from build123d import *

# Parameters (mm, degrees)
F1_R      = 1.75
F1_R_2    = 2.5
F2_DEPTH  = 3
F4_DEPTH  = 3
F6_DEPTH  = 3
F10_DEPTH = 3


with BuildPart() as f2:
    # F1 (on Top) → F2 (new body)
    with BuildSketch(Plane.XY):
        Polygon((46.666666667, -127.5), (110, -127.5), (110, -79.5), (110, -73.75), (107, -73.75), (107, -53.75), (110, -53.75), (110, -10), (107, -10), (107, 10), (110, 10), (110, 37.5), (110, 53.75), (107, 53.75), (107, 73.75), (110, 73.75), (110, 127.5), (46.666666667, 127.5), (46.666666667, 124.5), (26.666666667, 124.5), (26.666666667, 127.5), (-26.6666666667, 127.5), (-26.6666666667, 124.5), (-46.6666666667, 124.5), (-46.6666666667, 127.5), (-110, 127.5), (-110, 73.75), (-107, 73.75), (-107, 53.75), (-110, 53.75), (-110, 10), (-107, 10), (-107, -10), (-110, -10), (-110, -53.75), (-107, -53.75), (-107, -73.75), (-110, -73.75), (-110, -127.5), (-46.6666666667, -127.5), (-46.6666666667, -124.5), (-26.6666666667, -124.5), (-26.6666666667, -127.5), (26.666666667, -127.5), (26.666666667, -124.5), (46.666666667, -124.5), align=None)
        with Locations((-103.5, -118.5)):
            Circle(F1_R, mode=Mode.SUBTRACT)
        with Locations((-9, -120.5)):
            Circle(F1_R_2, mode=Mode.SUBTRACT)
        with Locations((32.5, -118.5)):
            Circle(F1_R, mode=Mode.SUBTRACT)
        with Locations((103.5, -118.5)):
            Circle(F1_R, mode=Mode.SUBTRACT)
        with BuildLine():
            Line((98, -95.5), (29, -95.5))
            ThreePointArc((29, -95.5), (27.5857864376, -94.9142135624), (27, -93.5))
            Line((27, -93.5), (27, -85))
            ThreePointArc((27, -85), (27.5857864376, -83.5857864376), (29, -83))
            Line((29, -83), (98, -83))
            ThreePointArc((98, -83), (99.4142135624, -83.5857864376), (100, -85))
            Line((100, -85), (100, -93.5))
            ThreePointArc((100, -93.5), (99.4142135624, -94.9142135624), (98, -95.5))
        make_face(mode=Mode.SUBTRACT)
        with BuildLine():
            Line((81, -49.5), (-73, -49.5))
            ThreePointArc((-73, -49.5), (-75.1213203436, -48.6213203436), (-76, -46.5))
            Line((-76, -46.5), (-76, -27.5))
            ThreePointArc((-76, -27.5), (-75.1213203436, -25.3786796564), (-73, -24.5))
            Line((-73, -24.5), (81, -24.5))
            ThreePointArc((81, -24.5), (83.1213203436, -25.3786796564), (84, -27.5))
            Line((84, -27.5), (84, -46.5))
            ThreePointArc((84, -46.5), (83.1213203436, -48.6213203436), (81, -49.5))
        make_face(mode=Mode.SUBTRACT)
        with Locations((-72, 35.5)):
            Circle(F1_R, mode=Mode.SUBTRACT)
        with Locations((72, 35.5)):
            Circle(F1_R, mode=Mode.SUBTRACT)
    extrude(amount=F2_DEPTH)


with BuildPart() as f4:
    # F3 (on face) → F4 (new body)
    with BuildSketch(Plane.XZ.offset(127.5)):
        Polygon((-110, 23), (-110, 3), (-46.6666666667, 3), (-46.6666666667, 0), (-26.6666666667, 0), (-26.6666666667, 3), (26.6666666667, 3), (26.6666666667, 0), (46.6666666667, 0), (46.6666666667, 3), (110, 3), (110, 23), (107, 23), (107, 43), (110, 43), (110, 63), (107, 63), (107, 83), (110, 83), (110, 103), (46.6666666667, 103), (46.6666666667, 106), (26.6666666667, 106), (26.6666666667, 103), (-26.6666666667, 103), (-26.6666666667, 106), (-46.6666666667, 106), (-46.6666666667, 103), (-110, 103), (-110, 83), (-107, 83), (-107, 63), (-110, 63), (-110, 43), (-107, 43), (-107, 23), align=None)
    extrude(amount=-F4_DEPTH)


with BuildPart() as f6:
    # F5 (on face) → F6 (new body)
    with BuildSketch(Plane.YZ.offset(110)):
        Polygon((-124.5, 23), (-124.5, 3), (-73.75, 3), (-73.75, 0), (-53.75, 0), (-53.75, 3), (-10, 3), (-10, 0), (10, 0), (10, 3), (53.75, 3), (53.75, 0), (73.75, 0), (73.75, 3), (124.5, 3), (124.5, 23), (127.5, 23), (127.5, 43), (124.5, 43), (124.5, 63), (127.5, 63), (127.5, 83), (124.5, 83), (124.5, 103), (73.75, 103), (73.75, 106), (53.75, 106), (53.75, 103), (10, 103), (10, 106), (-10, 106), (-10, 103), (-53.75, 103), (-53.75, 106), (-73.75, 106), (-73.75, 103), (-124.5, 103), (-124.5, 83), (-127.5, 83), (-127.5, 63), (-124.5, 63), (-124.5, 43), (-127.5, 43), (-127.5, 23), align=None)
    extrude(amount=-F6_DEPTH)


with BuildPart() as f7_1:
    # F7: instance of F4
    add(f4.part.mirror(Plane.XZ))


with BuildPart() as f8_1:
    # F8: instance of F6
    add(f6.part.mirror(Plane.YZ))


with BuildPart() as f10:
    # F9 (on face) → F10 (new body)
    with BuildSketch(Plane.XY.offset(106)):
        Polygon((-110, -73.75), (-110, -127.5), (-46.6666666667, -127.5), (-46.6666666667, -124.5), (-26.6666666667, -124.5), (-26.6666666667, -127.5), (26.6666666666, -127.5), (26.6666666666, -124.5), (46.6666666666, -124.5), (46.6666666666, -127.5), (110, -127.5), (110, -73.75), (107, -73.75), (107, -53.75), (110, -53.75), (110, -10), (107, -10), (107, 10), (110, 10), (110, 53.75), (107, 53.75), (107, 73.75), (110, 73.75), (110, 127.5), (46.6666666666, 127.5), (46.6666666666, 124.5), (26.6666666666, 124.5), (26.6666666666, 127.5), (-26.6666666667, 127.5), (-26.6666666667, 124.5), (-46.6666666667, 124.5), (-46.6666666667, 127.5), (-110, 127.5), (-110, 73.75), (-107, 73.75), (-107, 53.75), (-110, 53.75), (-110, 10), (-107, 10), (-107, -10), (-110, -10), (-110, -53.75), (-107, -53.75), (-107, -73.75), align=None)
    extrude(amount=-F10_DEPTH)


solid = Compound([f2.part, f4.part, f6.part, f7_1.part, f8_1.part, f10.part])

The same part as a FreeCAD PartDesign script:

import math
import FreeCAD as App
import Part
import Sketcher
from FreeCAD import Vector

doc = App.newDocument("Part")
body = doc.addObject("PartDesign::Body", "Body")

# Sketch on XY plane
sketch1 = doc.addObject("Sketcher::SketchObject", "Sketch")
body.addObject(sketch1)
sketch1.AttachmentSupport = (doc.XY_Plane, [""])
sketch1.MapMode = "FlatFace"
sketch1.addGeometry([
    Part.LineSegment(Vector(46.666667, -127.5, 0), Vector(110, -127.5, 0)),  # 0
    Part.LineSegment(Vector(110, -127.5, 0), Vector(110, -73.75, 0)),  # 1
    Part.LineSegment(Vector(110, -73.75, 0), Vector(107, -73.75, 0)),  # 2
    Part.LineSegment(Vector(107, -73.75, 0), Vector(107, -53.75, 0)),  # 3
    Part.LineSegment(Vector(107, -53.75, 0), Vector(110, -53.75, 0)),  # 4
    Part.LineSegment(Vector(110, -53.75, 0), Vector(110, -10, 0)),  # 5
    Part.LineSegment(Vector(110, -10, 0), Vector(107, -10, 0)),  # 6
    Part.LineSegment(Vector(107, -10, 0), Vector(107, 10, 0)),  # 7
    Part.LineSegment(Vector(107, 10, 0), Vector(110, 10, 0)),  # 8
    Part.LineSegment(Vector(110, 10, 0), Vector(110, 53.75, 0)),  # 9
    Part.LineSegment(Vector(110, 53.75, 0), Vector(107, 53.75, 0)),  # 10
    Part.LineSegment(Vector(107, 53.75, 0), Vector(107, 73.75, 0)),  # 11
    Part.LineSegment(Vector(107, 73.75, 0), Vector(110, 73.75, 0)),  # 12
    Part.LineSegment(Vector(110, 73.75, 0), Vector(110, 127.5, 0)),  # 13
    Part.LineSegment(Vector(110, 127.5, 0), Vector(46.666667, 127.5, 0)),  # 14
    Part.LineSegment(Vector(46.666667, 127.5, 0), Vector(46.666667, 124.5, 0)),  # 15
    Part.LineSegment(Vector(46.666667, 124.5, 0), Vector(26.666667, 124.5, 0)),  # 16
    Part.LineSegment(Vector(26.666667, 124.5, 0), Vector(26.666667, 127.5, 0)),  # 17
    Part.LineSegment(Vector(26.666667, 127.5, 0), Vector(-26.666667, 127.5, 0)),  # 18
    Part.LineSegment(Vector(-26.666667, 127.5, 0), Vector(-26.666667, 124.5, 0)),  # 19
    Part.LineSegment(Vector(-26.666667, 124.5, 0), Vector(-46.666667, 124.5, 0)),  # 20
    Part.LineSegment(Vector(-46.666667, 124.5, 0), Vector(-46.666667, 127.5, 0)),  # 21
    Part.LineSegment(Vector(-46.666667, 127.5, 0), Vector(-110, 127.5, 0)),  # 22
    Part.LineSegment(Vector(-110, 127.5, 0), Vector(-110, 73.75, 0)),  # 23
    Part.LineSegment(Vector(-110, 73.75, 0), Vector(-107, 73.75, 0)),  # 24
    Part.LineSegment(Vector(-107, 73.75, 0), Vector(-107, 53.75, 0)),  # 25
    Part.LineSegment(Vector(-107, 53.75, 0), Vector(-110, 53.75, 0)),  # 26
    Part.LineSegment(Vector(-110, 53.75, 0), Vector(-110, 10, 0)),  # 27
    Part.LineSegment(Vector(-110, 10, 0), Vector(-107, 10, 0)),  # 28
    Part.LineSegment(Vector(-107, 10, 0), Vector(-107, -10, 0)),  # 29
    Part.LineSegment(Vector(-107, -10, 0), Vector(-110, -10, 0)),  # 30
    Part.LineSegment(Vector(-110, -10, 0), Vector(-110, -53.75, 0)),  # 31
    Part.LineSegment(Vector(-110, -53.75, 0), Vector(-107, -53.75, 0)),  # 32
    Part.LineSegment(Vector(-107, -53.75, 0), Vector(-107, -73.75, 0)),  # 33
    Part.LineSegment(Vector(-107, -73.75, 0), Vector(-110, -73.75, 0)),  # 34
    Part.LineSegment(Vector(-110, -73.75, 0), Vector(-110, -127.5, 0)),  # 35
    Part.LineSegment(Vector(-110, -127.5, 0), Vector(-46.666667, -127.5, 0)),  # 36
    Part.LineSegment(Vector(-46.666667, -127.5, 0), Vector(-46.666667, -124.5, 0)),  # 37
    Part.LineSegment(Vector(-46.666667, -124.5, 0), Vector(-26.666667, -124.5, 0)),  # 38
    Part.LineSegment(Vector(-26.666667, -124.5, 0), Vector(-26.666667, -127.5, 0)),  # 39
    Part.LineSegment(Vector(-26.666667, -127.5, 0), Vector(26.666667, -127.5, 0)),  # 40
    Part.LineSegment(Vector(26.666667, -127.5, 0), Vector(26.666667, -124.5, 0)),  # 41
    Part.LineSegment(Vector(26.666667, -124.5, 0), Vector(46.666667, -124.5, 0)),  # 42
    Part.LineSegment(Vector(46.666667, -124.5, 0), Vector(46.666667, -127.5, 0)),  # 43
    Part.Circle(Vector(-103.5, -118.5, 0), Vector(0, 0, 1), 1.75),  # 44
    Part.Circle(Vector(-9, -120.5, 0), Vector(0, 0, 1), 2.5),  # 45
    Part.Circle(Vector(32.5, -118.5, 0), Vector(0, 0, 1), 1.75),  # 46
    Part.Circle(Vector(103.5, -118.5, 0), Vector(0, 0, 1), 1.75),  # 47
    Part.ArcOfCircle(Part.Circle(Vector(98, -93.5, 0), Vector(0, 0, 1), 2), math.radians(-90), math.radians(0)),  # 48
    Part.LineSegment(Vector(98, -95.5, 0), Vector(29, -95.5, 0)),  # 49
    Part.ArcOfCircle(Part.Circle(Vector(29, -93.5, 0), Vector(0, 0, 1), 2), math.radians(180), math.radians(270)),  # 50
    Part.LineSegment(Vector(27, -93.5, 0), Vector(27, -85, 0)),  # 51
    Part.ArcOfCircle(Part.Circle(Vector(29, -85, 0), Vector(0, 0, 1), 2), math.radians(90), math.radians(180)),  # 52
    Part.LineSegment(Vector(29, -83, 0), Vector(98, -83, 0)),  # 53
    Part.ArcOfCircle(Part.Circle(Vector(98, -85, 0), Vector(0, 0, 1), 2), math.radians(0), math.radians(90)),  # 54
    Part.LineSegment(Vector(100, -85, 0), Vector(100, -93.5, 0)),  # 55
    Part.Circle(Vector(-72, 35.5, 0), Vector(0, 0, 1), 1.75),  # 56
    Part.ArcOfCircle(Part.Circle(Vector(81, -46.5, 0), Vector(0, 0, 1), 3), math.radians(-90), math.radians(0)),  # 57
    Part.LineSegment(Vector(81, -49.5, 0), Vector(-73, -49.5, 0)),  # 58
    Part.ArcOfCircle(Part.Circle(Vector(-73, -46.5, 0), Vector(0, 0, 1), 3), math.radians(180), math.radians(270)),  # 59
    Part.LineSegment(Vector(-76, -46.5, 0), Vector(-76, -27.5, 0)),  # 60
    Part.ArcOfCircle(Part.Circle(Vector(-73, -27.5, 0), Vector(0, 0, 1), 3), math.radians(90), math.radians(180)),  # 61
    Part.LineSegment(Vector(-73, -24.5, 0), Vector(81, -24.5, 0)),  # 62
    Part.ArcOfCircle(Part.Circle(Vector(81, -27.5, 0), Vector(0, 0, 1), 3), math.radians(0), math.radians(90)),  # 63
    Part.LineSegment(Vector(84, -27.5, 0), Vector(84, -46.5, 0)),  # 64
    Part.Circle(Vector(72, 35.5, 0), Vector(0, 0, 1), 1.75),  # 65
], False)
sketch1.addConstraint([
    Sketcher.Constraint("Coincident", 0, 2, 1, 1),
    Sketcher.Constraint("Coincident", 1, 2, 2, 1),
    Sketcher.Constraint("Coincident", 2, 2, 3, 1),
    Sketcher.Constraint("Coincident", 3, 2, 4, 1),
    Sketcher.Constraint("Coincident", 4, 2, 5, 1),
    Sketcher.Constraint("Coincident", 5, 2, 6, 1),
    Sketcher.Constraint("Coincident", 6, 2, 7, 1),
    Sketcher.Constraint("Coincident", 7, 2, 8, 1),
    Sketcher.Constraint("Coincident", 8, 2, 9, 1),
    Sketcher.Constraint("Coincident", 9, 2, 10, 1),
    Sketcher.Constraint("Coincident", 10, 2, 11, 1),
    Sketcher.Constraint("Coincident", 11, 2, 12, 1),
    Sketcher.Constraint("Coincident", 12, 2, 13, 1),
    Sketcher.Constraint("Coincident", 13, 2, 14, 1),
    Sketcher.Constraint("Coincident", 14, 2, 15, 1),
    Sketcher.Constraint("Coincident", 15, 2, 16, 1),
    Sketcher.Constraint("Coincident", 16, 2, 17, 1),
    Sketcher.Constraint("Coincident", 17, 2, 18, 1),
    Sketcher.Constraint("Coincident", 18, 2, 19, 1),
    Sketcher.Constraint("Coincident", 19, 2, 20, 1),
    Sketcher.Constraint("Coincident", 20, 2, 21, 1),
    Sketcher.Constraint("Coincident", 21, 2, 22, 1),
    Sketcher.Constraint("Coincident", 22, 2, 23, 1),
    Sketcher.Constraint("Coincident", 23, 2, 24, 1),
    Sketcher.Constraint("Coincident", 24, 2, 25, 1),
    Sketcher.Constraint("Coincident", 25, 2, 26, 1),
    Sketcher.Constraint("Coincident", 26, 2, 27, 1),
    Sketcher.Constraint("Coincident", 27, 2, 28, 1),
    Sketcher.Constraint("Coincident", 28, 2, 29, 1),
    Sketcher.Constraint("Coincident", 29, 2, 30, 1),
    Sketcher.Constraint("Coincident", 30, 2, 31, 1),
    Sketcher.Constraint("Coincident", 31, 2, 32, 1),
    Sketcher.Constraint("Coincident", 32, 2, 33, 1),
    Sketcher.Constraint("Coincident", 33, 2, 34, 1),
    Sketcher.Constraint("Coincident", 34, 2, 35, 1),
    Sketcher.Constraint("Coincident", 35, 2, 36, 1),
    Sketcher.Constraint("Coincident", 36, 2, 37, 1),
    Sketcher.Constraint("Coincident", 37, 2, 38, 1),
    Sketcher.Constraint("Coincident", 38, 2, 39, 1),
    Sketcher.Constraint("Coincident", 39, 2, 40, 1),
    Sketcher.Constraint("Coincident", 40, 2, 41, 1),
    Sketcher.Constraint("Coincident", 41, 2, 42, 1),
    Sketcher.Constraint("Coincident", 42, 2, 43, 1),
    Sketcher.Constraint("Coincident", 43, 2, 0, 1),
    Sketcher.Constraint("Tangent", 48, 1, 49, 1),
    Sketcher.Constraint("Tangent", 49, 2, 50, 2),
    Sketcher.Constraint("Tangent", 50, 1, 51, 1),
    Sketcher.Constraint("Tangent", 51, 2, 52, 2),
    Sketcher.Constraint("Tangent", 52, 1, 53, 1),
    Sketcher.Constraint("Tangent", 53, 2, 54, 2),
    Sketcher.Constraint("Tangent", 54, 1, 55, 1),
    Sketcher.Constraint("Tangent", 55, 2, 48, 2),
    Sketcher.Constraint("Tangent", 57, 1, 58, 1),
    Sketcher.Constraint("Tangent", 58, 2, 59, 2),
    Sketcher.Constraint("Tangent", 59, 1, 60, 1),
    Sketcher.Constraint("Tangent", 60, 2, 61, 2),
    Sketcher.Constraint("Tangent", 61, 1, 62, 1),
    Sketcher.Constraint("Tangent", 62, 2, 63, 2),
    Sketcher.Constraint("Tangent", 63, 1, 64, 1),
    Sketcher.Constraint("Tangent", 64, 2, 57, 2),
    Sketcher.Constraint("Horizontal", 0),
    Sketcher.Constraint("Vertical", 1),
    Sketcher.Constraint("Horizontal", 2),
    Sketcher.Constraint("Vertical", 3),
    Sketcher.Constraint("Horizontal", 4),
    Sketcher.Constraint("Vertical", 5),
    Sketcher.Constraint("Horizontal", 6),
    Sketcher.Constraint("Vertical", 7),
    Sketcher.Constraint("Horizontal", 8),
    Sketcher.Constraint("Vertical", 9),
    Sketcher.Constraint("Horizontal", 10),
    Sketcher.Constraint("Vertical", 11),
    Sketcher.Constraint("Horizontal", 12),
    Sketcher.Constraint("Vertical", 13),
    Sketcher.Constraint("Horizontal", 14),
    Sketcher.Constraint("Vertical", 15),
    Sketcher.Constraint("Horizontal", 16),
    Sketcher.Constraint("Vertical", 17),
    Sketcher.Constraint("Horizontal", 18),
    Sketcher.Constraint("Vertical", 19),
    Sketcher.Constraint("Horizontal", 20),
    Sketcher.Constraint("Vertical", 21),
    Sketcher.Constraint("Horizontal", 22),
    Sketcher.Constraint("Vertical", 23),
    Sketcher.Constraint("Horizontal", 24),
    Sketcher.Constraint("Vertical", 25),
    Sketcher.Constraint("Horizontal", 26),
    Sketcher.Constraint("Vertical", 27),
    Sketcher.Constraint("Horizontal", 28),
    Sketcher.Constraint("Vertical", 29),
    Sketcher.Constraint("Horizontal", 30),
    Sketcher.Constraint("Vertical", 31),
    Sketcher.Constraint("Horizontal", 32),
    Sketcher.Constraint("Vertical", 33),
    Sketcher.Constraint("Horizontal", 34),
    Sketcher.Constraint("Vertical", 35),
    Sketcher.Constraint("Horizontal", 36),
    Sketcher.Constraint("Vertical", 37),
    Sketcher.Constraint("Horizontal", 38),
    Sketcher.Constraint("Vertical", 39),
    Sketcher.Constraint("Horizontal", 40),
    Sketcher.Constraint("Vertical", 41),
    Sketcher.Constraint("Horizontal", 42),
    Sketcher.Constraint("Vertical", 43),
    Sketcher.Constraint("Horizontal", 49),
    Sketcher.Constraint("Vertical", 51),
    Sketcher.Constraint("Horizontal", 53),
    Sketcher.Constraint("Vertical", 55),
    Sketcher.Constraint("Horizontal", 58),
    Sketcher.Constraint("Vertical", 60),
    Sketcher.Constraint("Horizontal", 62),
    Sketcher.Constraint("Vertical", 64),
    Sketcher.Constraint("Equal", 44, 46),
    Sketcher.Constraint("Equal", 46, 47),
    Sketcher.Constraint("Equal", 48, 50),
    Sketcher.Constraint("Equal", 50, 52),
    Sketcher.Constraint("Equal", 52, 54),
    Sketcher.Constraint("Equal", 47, 56),
    Sketcher.Constraint("Equal", 57, 59),
    Sketcher.Constraint("Equal", 59, 61),
    Sketcher.Constraint("Equal", 61, 63),
    Sketcher.Constraint("Equal", 56, 65),
    Sketcher.Constraint("Symmetric", 0, 2, 22, 2, -1, 1),
    Sketcher.Constraint("Symmetric", 2, 2, 24, 2, -1, 1),
    Sketcher.Constraint("Symmetric", 4, 2, 26, 2, -1, 1),
    Sketcher.Constraint("Symmetric", 6, 2, 28, 2, -1, 1),
    Sketcher.Constraint("Symmetric", 8, 2, 30, 2, -1, 1),
    Sketcher.Constraint("Symmetric", 10, 2, 32, 2, -1, 1),
    Sketcher.Constraint("Symmetric", 12, 2, 34, 2, -1, 1),
    Sketcher.Constraint("Symmetric", 14, 2, 36, 2, -1, 1),
    Sketcher.Constraint("Symmetric", 16, 2, 38, 2, -1, 1),
    Sketcher.Constraint("Symmetric", 18, 2, 40, 2, -1, 1),
    Sketcher.Constraint("Symmetric", 20, 2, 42, 2, -1, 1),
    Sketcher.Constraint("Symmetric", 44, 3, 47, 3, -2),
    Sketcher.Constraint("Symmetric", 56, 3, 65, 3, -2),
    Sketcher.Constraint("Symmetric", 16, 2, 19, 2, -2),
    Sketcher.Constraint("Symmetric", 14, 2, 21, 2, -2),
    Sketcher.Constraint("Symmetric", 12, 2, 23, 2, -2),
    Sketcher.Constraint("Symmetric", 10, 2, 25, 2, -2),
    Sketcher.Constraint("Symmetric", 8, 2, 27, 2, -2),
    Sketcher.Constraint("Horizontal", 44, 3, 46, 3),
    Sketcher.Constraint("Horizontal", 14, 2, 17, 2),
    Sketcher.Constraint("Vertical", 1, 2, 4, 2),
    Sketcher.Constraint("Vertical", 3, 2, 6, 2),
    Sketcher.Constraint("Equal", 42, 3),
    Sketcher.Constraint("Equal", 3, 7),
    Sketcher.Constraint("Equal", 34, 15),
    Sketcher.Constraint("Diameter", 45, 5.0),
    Sketcher.Constraint("Radius", 48, 2.0),
    Sketcher.Constraint("Radius", 57, 3.0),
    Sketcher.Constraint("Diameter", 44, 3.5),
    Sketcher.Constraint("DistanceX", 2, 2, 2, 1, 3.0),
    Sketcher.Constraint("DistanceX", 16, 2, 16, 1, 20.0),
    Sketcher.Constraint("DistanceX", 49, 2, 49, 1, 69.0),
    Sketcher.Constraint("DistanceX", 58, 2, 58, 1, 154.0),
    Sketcher.Constraint("DistanceY", 60, 1, 60, 2, 19.0),
    Sketcher.Constraint("DistanceY", 51, 1, 51, 2, 8.5),
    Sketcher.Constraint("DistanceX", 45, 3, -1, 1, 9.0),
    Sketcher.Constraint("DistanceX", -1, 1, 48, 3, 98.0),
    Sketcher.Constraint("DistanceY", 52, 3, -1, 1, 85.0),
    Sketcher.Constraint("DistanceX", 56, 3, -1, 1, 72.0),
    Sketcher.Constraint("DistanceX", -1, 1, 57, 3, 81.0),
    Sketcher.Constraint("DistanceX", -1, 1, 0, 2, 110.0),
    Sketcher.Constraint("DistanceY", 1, 1, 1, 2, 53.75),
    Sketcher.Constraint("DistanceY", 5, 1, 5, 2, 43.75),
    Sketcher.Constraint("DistanceX", 44, 3, -1, 1, 103.5),
    Sketcher.Constraint("DistanceY", 44, 3, -1, 1, 118.5),
    Sketcher.Constraint("DistanceY", 45, 3, -1, 1, 120.5),
    Sketcher.Constraint("DistanceX", -1, 1, 46, 3, 32.5),
    Sketcher.Constraint("DistanceY", -1, 1, 56, 3, 35.5),
    Sketcher.Constraint("DistanceY", 57, 3, -1, 1, 46.5),
    Sketcher.Constraint("DistanceX", 0, 1, 0, 2, 63.333333),
])
pad1 = doc.addObject("PartDesign::Pad", "Pad")
body.addObject(pad1)
pad1.Profile = sketch1
pad1.Length = 3
body2 = doc.addObject("PartDesign::Body", "Body001")

# Sketch on XZ plane
sketch2 = doc.addObject("Sketcher::SketchObject", "Sketch001")
body2.addObject(sketch2)
sketch2.AttachmentSupport = (doc.getObject("XZ_Plane001"), [""])
sketch2.MapMode = "FlatFace"
sketch2.AttachmentOffset = App.Placement(Vector(0, 0, 127.5), App.Rotation())
sketch2.addGeometry([
    Part.LineSegment(Vector(-110, 23, 0), Vector(-110, 3, 0)),  # 0
    Part.LineSegment(Vector(-110, 3, 0), Vector(-46.666667, 3, 0)),  # 1
    Part.LineSegment(Vector(-46.666667, 3, 0), Vector(-46.666667, 0, 0)),  # 2
    Part.LineSegment(Vector(-46.666667, 0, 0), Vector(-26.666667, 0, 0)),  # 3
    Part.LineSegment(Vector(-26.666667, 0, 0), Vector(-26.666667, 3, 0)),  # 4
    Part.LineSegment(Vector(-26.666667, 3, 0), Vector(26.666667, 3, 0)),  # 5
    Part.LineSegment(Vector(26.666667, 3, 0), Vector(26.666667, 0, 0)),  # 6
    Part.LineSegment(Vector(26.666667, 0, 0), Vector(46.666667, 0, 0)),  # 7
    Part.LineSegment(Vector(46.666667, 0, 0), Vector(46.666667, 3, 0)),  # 8
    Part.LineSegment(Vector(46.666667, 3, 0), Vector(110, 3, 0)),  # 9
    Part.LineSegment(Vector(110, 3, 0), Vector(110, 23, 0)),  # 10
    Part.LineSegment(Vector(110, 23, 0), Vector(107, 23, 0)),  # 11
    Part.LineSegment(Vector(107, 23, 0), Vector(107, 43, 0)),  # 12
    Part.LineSegment(Vector(107, 43, 0), Vector(110, 43, 0)),  # 13
    Part.LineSegment(Vector(110, 43, 0), Vector(110, 63, 0)),  # 14
    Part.LineSegment(Vector(110, 63, 0), Vector(107, 63, 0)),  # 15
    Part.LineSegment(Vector(107, 63, 0), Vector(107, 83, 0)),  # 16
    Part.LineSegment(Vector(107, 83, 0), Vector(110, 83, 0)),  # 17
    Part.LineSegment(Vector(110, 83, 0), Vector(110, 103, 0)),  # 18
    Part.LineSegment(Vector(110, 103, 0), Vector(46.666667, 103, 0)),  # 19
    Part.LineSegment(Vector(46.666667, 103, 0), Vector(46.666667, 106, 0)),  # 20
    Part.LineSegment(Vector(46.666667, 106, 0), Vector(26.666667, 106, 0)),  # 21
    Part.LineSegment(Vector(26.666667, 106, 0), Vector(26.666667, 103, 0)),  # 22
    Part.LineSegment(Vector(26.666667, 103, 0), Vector(-26.666667, 103, 0)),  # 23
    Part.LineSegment(Vector(-26.666667, 103, 0), Vector(-26.666667, 106, 0)),  # 24
    Part.LineSegment(Vector(-26.666667, 106, 0), Vector(-46.666667, 106, 0)),  # 25
    Part.LineSegment(Vector(-46.666667, 106, 0), Vector(-46.666667, 103, 0)),  # 26
    Part.LineSegment(Vector(-46.666667, 103, 0), Vector(-110, 103, 0)),  # 27
    Part.LineSegment(Vector(-110, 103, 0), Vector(-110, 83, 0)),  # 28
    Part.LineSegment(Vector(-110, 83, 0), Vector(-107, 83, 0)),  # 29
    Part.LineSegment(Vector(-107, 83, 0), Vector(-107, 63, 0)),  # 30
    Part.LineSegment(Vector(-107, 63, 0), Vector(-110, 63, 0)),  # 31
    Part.LineSegment(Vector(-110, 63, 0), Vector(-110, 43, 0)),  # 32
    Part.LineSegment(Vector(-110, 43, 0), Vector(-107, 43, 0)),  # 33
    Part.LineSegment(Vector(-107, 43, 0), Vector(-107, 23, 0)),  # 34
    Part.LineSegment(Vector(-107, 23, 0), Vector(-110, 23, 0)),  # 35
], False)
sketch2.addConstraint([
    Sketcher.Constraint("Coincident", 0, 2, 1, 1),
    Sketcher.Constraint("Coincident", 1, 2, 2, 1),
    Sketcher.Constraint("Coincident", 2, 2, 3, 1),
    Sketcher.Constraint("Coincident", 3, 2, 4, 1),
    Sketcher.Constraint("Coincident", 4, 2, 5, 1),
    Sketcher.Constraint("Coincident", 5, 2, 6, 1),
    Sketcher.Constraint("Coincident", 6, 2, 7, 1),
    Sketcher.Constraint("Coincident", 7, 2, 8, 1),
    Sketcher.Constraint("Coincident", 8, 2, 9, 1),
    Sketcher.Constraint("Coincident", 9, 2, 10, 1),
    Sketcher.Constraint("Coincident", 10, 2, 11, 1),
    Sketcher.Constraint("Coincident", 11, 2, 12, 1),
    Sketcher.Constraint("Coincident", 12, 2, 13, 1),
    Sketcher.Constraint("Coincident", 13, 2, 14, 1),
    Sketcher.Constraint("Coincident", 14, 2, 15, 1),
    Sketcher.Constraint("Coincident", 15, 2, 16, 1),
    Sketcher.Constraint("Coincident", 16, 2, 17, 1),
    Sketcher.Constraint("Coincident", 17, 2, 18, 1),
    Sketcher.Constraint("Coincident", 18, 2, 19, 1),
    Sketcher.Constraint("Coincident", 19, 2, 20, 1),
    Sketcher.Constraint("Coincident", 20, 2, 21, 1),
    Sketcher.Constraint("Coincident", 21, 2, 22, 1),
    Sketcher.Constraint("Coincident", 22, 2, 23, 1),
    Sketcher.Constraint("Coincident", 23, 2, 24, 1),
    Sketcher.Constraint("Coincident", 24, 2, 25, 1),
    Sketcher.Constraint("Coincident", 25, 2, 26, 1),
    Sketcher.Constraint("Coincident", 26, 2, 27, 1),
    Sketcher.Constraint("Coincident", 27, 2, 28, 1),
    Sketcher.Constraint("Coincident", 28, 2, 29, 1),
    Sketcher.Constraint("Coincident", 29, 2, 30, 1),
    Sketcher.Constraint("Coincident", 30, 2, 31, 1),
    Sketcher.Constraint("Coincident", 31, 2, 32, 1),
    Sketcher.Constraint("Coincident", 32, 2, 33, 1),
    Sketcher.Constraint("Coincident", 33, 2, 34, 1),
    Sketcher.Constraint("Coincident", 34, 2, 35, 1),
    Sketcher.Constraint("Coincident", 35, 2, 0, 1),
    Sketcher.Constraint("Vertical", 0),
    Sketcher.Constraint("Horizontal", 1),
    Sketcher.Constraint("Vertical", 2),
    Sketcher.Constraint("Horizontal", 3),
    Sketcher.Constraint("Vertical", 4),
    Sketcher.Constraint("Horizontal", 5),
    Sketcher.Constraint("Vertical", 6),
    Sketcher.Constraint("Horizontal", 7),
    Sketcher.Constraint("Vertical", 8),
    Sketcher.Constraint("Horizontal", 9),
    Sketcher.Constraint("Vertical", 10),
    Sketcher.Constraint("Horizontal", 11),
    Sketcher.Constraint("Vertical", 12),
    Sketcher.Constraint("Horizontal", 13),
    Sketcher.Constraint("Vertical", 14),
    Sketcher.Constraint("Horizontal", 15),
    Sketcher.Constraint("Vertical", 16),
    Sketcher.Constraint("Horizontal", 17),
    Sketcher.Constraint("Vertical", 18),
    Sketcher.Constraint("Horizontal", 19),
    Sketcher.Constraint("Vertical", 20),
    Sketcher.Constraint("Horizontal", 21),
    Sketcher.Constraint("Vertical", 22),
    Sketcher.Constraint("Horizontal", 23),
    Sketcher.Constraint("Vertical", 24),
    Sketcher.Constraint("Horizontal", 25),
    Sketcher.Constraint("Vertical", 26),
    Sketcher.Constraint("Horizontal", 27),
    Sketcher.Constraint("Vertical", 28),
    Sketcher.Constraint("Horizontal", 29),
    Sketcher.Constraint("Vertical", 30),
    Sketcher.Constraint("Horizontal", 31),
    Sketcher.Constraint("Vertical", 32),
    Sketcher.Constraint("Horizontal", 33),
    Sketcher.Constraint("Vertical", 34),
    Sketcher.Constraint("Horizontal", 35),
    Sketcher.Constraint("Symmetric", 3, 2, 6, 2, -1, 1),
    Sketcher.Constraint("Symmetric", 2, 2, 7, 2, -2),
    Sketcher.Constraint("Symmetric", 0, 2, 9, 2, -2),
    Sketcher.Constraint("Symmetric", 21, 2, 24, 2, -2),
    Sketcher.Constraint("Symmetric", 19, 2, 26, 2, -2),
    Sketcher.Constraint("Symmetric", 17, 2, 28, 2, -2),
    Sketcher.Constraint("Symmetric", 15, 2, 30, 2, -2),
    Sketcher.Constraint("Symmetric", 13, 2, 32, 2, -2),
    Sketcher.Constraint("Symmetric", 11, 2, 34, 2, -2),
    Sketcher.Constraint("Horizontal", 1, 2, 4, 2),
    Sketcher.Constraint("Horizontal", 19, 2, 22, 2),
    Sketcher.Constraint("Vertical", 10, 2, 13, 2),
    Sketcher.Constraint("Vertical", 12, 2, 15, 2),
    Sketcher.Constraint("Vertical", 14, 2, 17, 2),
    Sketcher.Constraint("Vertical", 8, 2, 19, 2),
    Sketcher.Constraint("Vertical", 6, 2, 21, 2),
    Sketcher.Constraint("Equal", 25, 0),
    Sketcher.Constraint("Equal", 35, 2),
    Sketcher.Constraint("Equal", 10, 12),
    Sketcher.Constraint("Equal", 12, 14),
    Sketcher.Constraint("Equal", 14, 16),
    Sketcher.Constraint("Equal", 16, 18),
    Sketcher.Constraint("Equal", 8, 20),
    Sketcher.Constraint("DistanceX", 3, 1, 3, 2, 20.0),
    Sketcher.Constraint("DistanceX", 11, 2, 11, 1, 3.0),
    Sketcher.Constraint("DistanceX", 0, 2, -1, 1, 110.0),
    Sketcher.Constraint("DistanceX", 1, 1, 1, 2, 63.333333),
])
pad2 = doc.addObject("PartDesign::Pad", "Pad001")
body2.addObject(pad2)
pad2.Profile = sketch2
pad2.Length = 3
pad2.Reversed = True
body3 = doc.addObject("PartDesign::Body", "Body002")

# Sketch on YZ plane
sketch3 = doc.addObject("Sketcher::SketchObject", "Sketch002")
body3.addObject(sketch3)
sketch3.AttachmentSupport = (doc.getObject("YZ_Plane002"), [""])
sketch3.MapMode = "FlatFace"
sketch3.AttachmentOffset = App.Placement(Vector(0, 0, 110), App.Rotation())
sketch3.addGeometry([
    Part.LineSegment(Vector(-124.5, 23, 0), Vector(-124.5, 3, 0)),  # 0
    Part.LineSegment(Vector(-124.5, 3, 0), Vector(-73.75, 3, 0)),  # 1
    Part.LineSegment(Vector(-73.75, 3, 0), Vector(-73.75, 0, 0)),  # 2
    Part.LineSegment(Vector(-73.75, 0, 0), Vector(-53.75, 0, 0)),  # 3
    Part.LineSegment(Vector(-53.75, 0, 0), Vector(-53.75, 3, 0)),  # 4
    Part.LineSegment(Vector(-53.75, 3, 0), Vector(-10, 3, 0)),  # 5
    Part.LineSegment(Vector(-10, 3, 0), Vector(-10, 0, 0)),  # 6
    Part.LineSegment(Vector(-10, 0, 0), Vector(10, 0, 0)),  # 7
    Part.LineSegment(Vector(10, 0, 0), Vector(10, 3, 0)),  # 8
    Part.LineSegment(Vector(10, 3, 0), Vector(53.75, 3, 0)),  # 9
    Part.LineSegment(Vector(53.75, 3, 0), Vector(53.75, 0, 0)),  # 10
    Part.LineSegment(Vector(53.75, 0, 0), Vector(73.75, 0, 0)),  # 11
    Part.LineSegment(Vector(73.75, 0, 0), Vector(73.75, 3, 0)),  # 12
    Part.LineSegment(Vector(73.75, 3, 0), Vector(124.5, 3, 0)),  # 13
    Part.LineSegment(Vector(124.5, 3, 0), Vector(124.5, 23, 0)),  # 14
    Part.LineSegment(Vector(124.5, 23, 0), Vector(127.5, 23, 0)),  # 15
    Part.LineSegment(Vector(127.5, 23, 0), Vector(127.5, 43, 0)),  # 16
    Part.LineSegment(Vector(127.5, 43, 0), Vector(124.5, 43, 0)),  # 17
    Part.LineSegment(Vector(124.5, 43, 0), Vector(124.5, 63, 0)),  # 18
    Part.LineSegment(Vector(124.5, 63, 0), Vector(127.5, 63, 0)),  # 19
    Part.LineSegment(Vector(127.5, 63, 0), Vector(127.5, 83, 0)),  # 20
    Part.LineSegment(Vector(127.5, 83, 0), Vector(124.5, 83, 0)),  # 21
    Part.LineSegment(Vector(124.5, 83, 0), Vector(124.5, 103, 0)),  # 22
    Part.LineSegment(Vector(124.5, 103, 0), Vector(73.75, 103, 0)),  # 23
    Part.LineSegment(Vector(73.75, 103, 0), Vector(73.75, 106, 0)),  # 24
    Part.LineSegment(Vector(73.75, 106, 0), Vector(53.75, 106, 0)),  # 25
    Part.LineSegment(Vector(53.75, 106, 0), Vector(53.75, 103, 0)),  # 26
    Part.LineSegment(Vector(53.75, 103, 0), Vector(10, 103, 0)),  # 27
    Part.LineSegment(Vector(10, 103, 0), Vector(10, 106, 0)),  # 28
    Part.LineSegment(Vector(10, 106, 0), Vector(-10, 106, 0)),  # 29
    Part.LineSegment(Vector(-10, 106, 0), Vector(-10, 103, 0)),  # 30
    Part.LineSegment(Vector(-10, 103, 0), Vector(-53.75, 103, 0)),  # 31
    Part.LineSegment(Vector(-53.75, 103, 0), Vector(-53.75, 106, 0)),  # 32
    Part.LineSegment(Vector(-53.75, 106, 0), Vector(-73.75, 106, 0)),  # 33
    Part.LineSegment(Vector(-73.75, 106, 0), Vector(-73.75, 103, 0)),  # 34
    Part.LineSegment(Vector(-73.75, 103, 0), Vector(-124.5, 103, 0)),  # 35
    Part.LineSegment(Vector(-124.5, 103, 0), Vector(-124.5, 83, 0)),  # 36
    Part.LineSegment(Vector(-124.5, 83, 0), Vector(-127.5, 83, 0)),  # 37
    Part.LineSegment(Vector(-127.5, 83, 0), Vector(-127.5, 63, 0)),  # 38
    Part.LineSegment(Vector(-127.5, 63, 0), Vector(-124.5, 63, 0)),  # 39
    Part.LineSegment(Vector(-124.5, 63, 0), Vector(-124.5, 43, 0)),  # 40
    Part.LineSegment(Vector(-124.5, 43, 0), Vector(-127.5, 43, 0)),  # 41
    Part.LineSegment(Vector(-127.5, 43, 0), Vector(-127.5, 23, 0)),  # 42
    Part.LineSegment(Vector(-127.5, 23, 0), Vector(-124.5, 23, 0)),  # 43
], False)
sketch3.addConstraint([
    Sketcher.Constraint("Coincident", 0, 2, 1, 1),
    Sketcher.Constraint("Coincident", 1, 2, 2, 1),
    Sketcher.Constraint("Coincident", 2, 2, 3, 1),
    Sketcher.Constraint("Coincident", 3, 2, 4, 1),
    Sketcher.Constraint("Coincident", 4, 2, 5, 1),
    Sketcher.Constraint("Coincident", 5, 2, 6, 1),
    Sketcher.Constraint("Coincident", 6, 2, 7, 1),
    Sketcher.Constraint("Coincident", 7, 2, 8, 1),
    Sketcher.Constraint("Coincident", 8, 2, 9, 1),
    Sketcher.Constraint("Coincident", 9, 2, 10, 1),
    Sketcher.Constraint("Coincident", 10, 2, 11, 1),
    Sketcher.Constraint("Coincident", 11, 2, 12, 1),
    Sketcher.Constraint("Coincident", 12, 2, 13, 1),
    Sketcher.Constraint("Coincident", 13, 2, 14, 1),
    Sketcher.Constraint("Coincident", 14, 2, 15, 1),
    Sketcher.Constraint("Coincident", 15, 2, 16, 1),
    Sketcher.Constraint("Coincident", 16, 2, 17, 1),
    Sketcher.Constraint("Coincident", 17, 2, 18, 1),
    Sketcher.Constraint("Coincident", 18, 2, 19, 1),
    Sketcher.Constraint("Coincident", 19, 2, 20, 1),
    Sketcher.Constraint("Coincident", 20, 2, 21, 1),
    Sketcher.Constraint("Coincident", 21, 2, 22, 1),
    Sketcher.Constraint("Coincident", 22, 2, 23, 1),
    Sketcher.Constraint("Coincident", 23, 2, 24, 1),
    Sketcher.Constraint("Coincident", 24, 2, 25, 1),
    Sketcher.Constraint("Coincident", 25, 2, 26, 1),
    Sketcher.Constraint("Coincident", 26, 2, 27, 1),
    Sketcher.Constraint("Coincident", 27, 2, 28, 1),
    Sketcher.Constraint("Coincident", 28, 2, 29, 1),
    Sketcher.Constraint("Coincident", 29, 2, 30, 1),
    Sketcher.Constraint("Coincident", 30, 2, 31, 1),
    Sketcher.Constraint("Coincident", 31, 2, 32, 1),
    Sketcher.Constraint("Coincident", 32, 2, 33, 1),
    Sketcher.Constraint("Coincident", 33, 2, 34, 1),
    Sketcher.Constraint("Coincident", 34, 2, 35, 1),
    Sketcher.Constraint("Coincident", 35, 2, 36, 1),
    Sketcher.Constraint("Coincident", 36, 2, 37, 1),
    Sketcher.Constraint("Coincident", 37, 2, 38, 1),
    Sketcher.Constraint("Coincident", 38, 2, 39, 1),
    Sketcher.Constraint("Coincident", 39, 2, 40, 1),
    Sketcher.Constraint("Coincident", 40, 2, 41, 1),
    Sketcher.Constraint("Coincident", 41, 2, 42, 1),
    Sketcher.Constraint("Coincident", 42, 2, 43, 1),
    Sketcher.Constraint("Coincident", 43, 2, 0, 1),
    Sketcher.Constraint("Vertical", 0),
    Sketcher.Constraint("Horizontal", 1),
    Sketcher.Constraint("Vertical", 2),
    Sketcher.Constraint("Horizontal", 3),
    Sketcher.Constraint("Vertical", 4),
    Sketcher.Constraint("Horizontal", 5),
    Sketcher.Constraint("Vertical", 6),
    Sketcher.Constraint("Horizontal", 7),
    Sketcher.Constraint("Vertical", 8),
    Sketcher.Constraint("Horizontal", 9),
    Sketcher.Constraint("Vertical", 10),
    Sketcher.Constraint("Horizontal", 11),
    Sketcher.Constraint("Vertical", 12),
    Sketcher.Constraint("Horizontal", 13),
    Sketcher.Constraint("Vertical", 14),
    Sketcher.Constraint("Horizontal", 15),
    Sketcher.Constraint("Vertical", 16),
    Sketcher.Constraint("Horizontal", 17),
    Sketcher.Constraint("Vertical", 18),
    Sketcher.Constraint("Horizontal", 19),
    Sketcher.Constraint("Vertical", 20),
    Sketcher.Constraint("Horizontal", 21),
    Sketcher.Constraint("Vertical", 22),
    Sketcher.Constraint("Horizontal", 23),
    Sketcher.Constraint("Vertical", 24),
    Sketcher.Constraint("Horizontal", 25),
    Sketcher.Constraint("Vertical", 26),
    Sketcher.Constraint("Horizontal", 27),
    Sketcher.Constraint("Vertical", 28),
    Sketcher.Constraint("Horizontal", 29),
    Sketcher.Constraint("Vertical", 30),
    Sketcher.Constraint("Horizontal", 31),
    Sketcher.Constraint("Vertical", 32),
    Sketcher.Constraint("Horizontal", 33),
    Sketcher.Constraint("Vertical", 34),
    Sketcher.Constraint("Horizontal", 35),
    Sketcher.Constraint("Vertical", 36),
    Sketcher.Constraint("Horizontal", 37),
    Sketcher.Constraint("Vertical", 38),
    Sketcher.Constraint("Horizontal", 39),
    Sketcher.Constraint("Vertical", 40),
    Sketcher.Constraint("Horizontal", 41),
    Sketcher.Constraint("Vertical", 42),
    Sketcher.Constraint("Horizontal", 43),
    Sketcher.Constraint("Symmetric", 6, 2, 7, 2, -1, 1),
    Sketcher.Constraint("Symmetric", 3, 2, 10, 2, -1, 1),
    Sketcher.Constraint("Symmetric", 2, 2, 11, 2, -2),
    Sketcher.Constraint("Symmetric", 0, 2, 13, 2, -2),
    Sketcher.Constraint("Symmetric", 27, 2, 30, 2, -2),
    Sketcher.Constraint("Symmetric", 25, 2, 32, 2, -2),
    Sketcher.Constraint("Symmetric", 23, 2, 34, 2, -2),
    Sketcher.Constraint("Symmetric", 21, 2, 36, 2, -2),
    Sketcher.Constraint("Symmetric", 19, 2, 38, 2, -2),
    Sketcher.Constraint("Symmetric", 17, 2, 40, 2, -2),
    Sketcher.Constraint("Symmetric", 15, 2, 42, 2, -2),
    Sketcher.Constraint("Horizontal", 1, 2, 4, 2),
    Sketcher.Constraint("Horizontal", 5, 2, 8, 2),
    Sketcher.Constraint("Horizontal", 23, 2, 26, 2),
    Sketcher.Constraint("Horizontal", 25, 2, 28, 2),
    Sketcher.Constraint("Vertical", 14, 2, 17, 2),
    Sketcher.Constraint("Vertical", 16, 2, 19, 2),
    Sketcher.Constraint("Vertical", 18, 2, 21, 2),
    Sketcher.Constraint("Vertical", 12, 2, 23, 2),
    Sketcher.Constraint("Vertical", 10, 2, 25, 2),
    Sketcher.Constraint("Vertical", 8, 2, 27, 2),
    Sketcher.Constraint("Equal", 3, 7),
    Sketcher.Constraint("Equal", 33, 0),
    Sketcher.Constraint("Equal", 43, 2),
    Sketcher.Constraint("Equal", 14, 16),
    Sketcher.Constraint("Equal", 16, 18),
    Sketcher.Constraint("Equal", 18, 20),
    Sketcher.Constraint("Equal", 20, 22),
    Sketcher.Constraint("Equal", 12, 24),
    Sketcher.Constraint("DistanceX", 3, 1, 3, 2, 20.0),
    Sketcher.Constraint("DistanceX", 15, 1, 15, 2, 3.0),
    Sketcher.Constraint("DistanceX", 1, 1, 1, 2, 50.75),
    Sketcher.Constraint("DistanceX", 5, 1, 5, 2, 43.75),
])
pad3 = doc.addObject("PartDesign::Pad", "Pad002")
body3.addObject(pad3)
pad3.Profile = sketch3
pad3.Length = 3
pad3.Reversed = True
body4 = doc.addObject("PartDesign::Body", "Body003")
doc.recompute()

mirroring = doc.addObject("Part::Mirroring", "Mirroring")
mirroring.Source = body2
mirroring.Base = Vector(0, 0, 0)
mirroring.Normal = Vector(0, -1, 0)
body4.BaseFeature = mirroring
doc.recompute()
body5 = doc.addObject("PartDesign::Body", "Body004")
doc.recompute()

mirroring2 = doc.addObject("Part::Mirroring", "Mirroring001")
mirroring2.Source = body3
mirroring2.Base = Vector(0, 0, 0)
mirroring2.Normal = Vector(1, 0, 0)
body5.BaseFeature = mirroring2
doc.recompute()
body6 = doc.addObject("PartDesign::Body", "Body005")

# Sketch on XY plane
sketch4 = doc.addObject("Sketcher::SketchObject", "Sketch003")
body6.addObject(sketch4)
sketch4.AttachmentSupport = (doc.getObject("XY_Plane005"), [""])
sketch4.MapMode = "FlatFace"
sketch4.AttachmentOffset = App.Placement(Vector(0, 0, 106), App.Rotation())
sketch4.addGeometry([
    Part.LineSegment(Vector(-110, -73.75, 0), Vector(-110, -127.5, 0)),  # 0
    Part.LineSegment(Vector(-110, -127.5, 0), Vector(-46.666667, -127.5, 0)),  # 1
    Part.LineSegment(Vector(-46.666667, -127.5, 0), Vector(-46.666667, -124.5, 0)),  # 2
    Part.LineSegment(Vector(-46.666667, -124.5, 0), Vector(-26.666667, -124.5, 0)),  # 3
    Part.LineSegment(Vector(-26.666667, -124.5, 0), Vector(-26.666667, -127.5, 0)),  # 4
    Part.LineSegment(Vector(-26.666667, -127.5, 0), Vector(26.666667, -127.5, 0)),  # 5
    Part.LineSegment(Vector(26.666667, -127.5, 0), Vector(26.666667, -124.5, 0)),  # 6
    Part.LineSegment(Vector(26.666667, -124.5, 0), Vector(46.666667, -124.5, 0)),  # 7
    Part.LineSegment(Vector(46.666667, -124.5, 0), Vector(46.666667, -127.5, 0)),  # 8
    Part.LineSegment(Vector(46.666667, -127.5, 0), Vector(110, -127.5, 0)),  # 9
    Part.LineSegment(Vector(110, -127.5, 0), Vector(110, -73.75, 0)),  # 10
    Part.LineSegment(Vector(110, -73.75, 0), Vector(107, -73.75, 0)),  # 11
    Part.LineSegment(Vector(107, -73.75, 0), Vector(107, -53.75, 0)),  # 12
    Part.LineSegment(Vector(107, -53.75, 0), Vector(110, -53.75, 0)),  # 13
    Part.LineSegment(Vector(110, -53.75, 0), Vector(110, -10, 0)),  # 14
    Part.LineSegment(Vector(110, -10, 0), Vector(107, -10, 0)),  # 15
    Part.LineSegment(Vector(107, -10, 0), Vector(107, 10, 0)),  # 16
    Part.LineSegment(Vector(107, 10, 0), Vector(110, 10, 0)),  # 17
    Part.LineSegment(Vector(110, 10, 0), Vector(110, 53.75, 0)),  # 18
    Part.LineSegment(Vector(110, 53.75, 0), Vector(107, 53.75, 0)),  # 19
    Part.LineSegment(Vector(107, 53.75, 0), Vector(107, 73.75, 0)),  # 20
    Part.LineSegment(Vector(107, 73.75, 0), Vector(110, 73.75, 0)),  # 21
    Part.LineSegment(Vector(110, 73.75, 0), Vector(110, 127.5, 0)),  # 22
    Part.LineSegment(Vector(110, 127.5, 0), Vector(46.666667, 127.5, 0)),  # 23
    Part.LineSegment(Vector(46.666667, 127.5, 0), Vector(46.666667, 124.5, 0)),  # 24
    Part.LineSegment(Vector(46.666667, 124.5, 0), Vector(26.666667, 124.5, 0)),  # 25
    Part.LineSegment(Vector(26.666667, 124.5, 0), Vector(26.666667, 127.5, 0)),  # 26
    Part.LineSegment(Vector(26.666667, 127.5, 0), Vector(-26.666667, 127.5, 0)),  # 27
    Part.LineSegment(Vector(-26.666667, 127.5, 0), Vector(-26.666667, 124.5, 0)),  # 28
    Part.LineSegment(Vector(-26.666667, 124.5, 0), Vector(-46.666667, 124.5, 0)),  # 29
    Part.LineSegment(Vector(-46.666667, 124.5, 0), Vector(-46.666667, 127.5, 0)),  # 30
    Part.LineSegment(Vector(-46.666667, 127.5, 0), Vector(-110, 127.5, 0)),  # 31
    Part.LineSegment(Vector(-110, 127.5, 0), Vector(-110, 73.75, 0)),  # 32
    Part.LineSegment(Vector(-110, 73.75, 0), Vector(-107, 73.75, 0)),  # 33
    Part.LineSegment(Vector(-107, 73.75, 0), Vector(-107, 53.75, 0)),  # 34
    Part.LineSegment(Vector(-107, 53.75, 0), Vector(-110, 53.75, 0)),  # 35
    Part.LineSegment(Vector(-110, 53.75, 0), Vector(-110, 10, 0)),  # 36
    Part.LineSegment(Vector(-110, 10, 0), Vector(-107, 10, 0)),  # 37
    Part.LineSegment(Vector(-107, 10, 0), Vector(-107, -10, 0)),  # 38
    Part.LineSegment(Vector(-107, -10, 0), Vector(-110, -10, 0)),  # 39
    Part.LineSegment(Vector(-110, -10, 0), Vector(-110, -53.75, 0)),  # 40
    Part.LineSegment(Vector(-110, -53.75, 0), Vector(-107, -53.75, 0)),  # 41
    Part.LineSegment(Vector(-107, -53.75, 0), Vector(-107, -73.75, 0)),  # 42
    Part.LineSegment(Vector(-107, -73.75, 0), Vector(-110, -73.75, 0)),  # 43
], False)
sketch4.addConstraint([
    Sketcher.Constraint("Coincident", 0, 2, 1, 1),
    Sketcher.Constraint("Coincident", 1, 2, 2, 1),
    Sketcher.Constraint("Coincident", 2, 2, 3, 1),
    Sketcher.Constraint("Coincident", 3, 2, 4, 1),
    Sketcher.Constraint("Coincident", 4, 2, 5, 1),
    Sketcher.Constraint("Coincident", 5, 2, 6, 1),
    Sketcher.Constraint("Coincident", 6, 2, 7, 1),
    Sketcher.Constraint("Coincident", 7, 2, 8, 1),
    Sketcher.Constraint("Coincident", 8, 2, 9, 1),
    Sketcher.Constraint("Coincident", 9, 2, 10, 1),
    Sketcher.Constraint("Coincident", 10, 2, 11, 1),
    Sketcher.Constraint("Coincident", 11, 2, 12, 1),
    Sketcher.Constraint("Coincident", 12, 2, 13, 1),
    Sketcher.Constraint("Coincident", 13, 2, 14, 1),
    Sketcher.Constraint("Coincident", 14, 2, 15, 1),
    Sketcher.Constraint("Coincident", 15, 2, 16, 1),
    Sketcher.Constraint("Coincident", 16, 2, 17, 1),
    Sketcher.Constraint("Coincident", 17, 2, 18, 1),
    Sketcher.Constraint("Coincident", 18, 2, 19, 1),
    Sketcher.Constraint("Coincident", 19, 2, 20, 1),
    Sketcher.Constraint("Coincident", 20, 2, 21, 1),
    Sketcher.Constraint("Coincident", 21, 2, 22, 1),
    Sketcher.Constraint("Coincident", 22, 2, 23, 1),
    Sketcher.Constraint("Coincident", 23, 2, 24, 1),
    Sketcher.Constraint("Coincident", 24, 2, 25, 1),
    Sketcher.Constraint("Coincident", 25, 2, 26, 1),
    Sketcher.Constraint("Coincident", 26, 2, 27, 1),
    Sketcher.Constraint("Coincident", 27, 2, 28, 1),
    Sketcher.Constraint("Coincident", 28, 2, 29, 1),
    Sketcher.Constraint("Coincident", 29, 2, 30, 1),
    Sketcher.Constraint("Coincident", 30, 2, 31, 1),
    Sketcher.Constraint("Coincident", 31, 2, 32, 1),
    Sketcher.Constraint("Coincident", 32, 2, 33, 1),
    Sketcher.Constraint("Coincident", 33, 2, 34, 1),
    Sketcher.Constraint("Coincident", 34, 2, 35, 1),
    Sketcher.Constraint("Coincident", 35, 2, 36, 1),
    Sketcher.Constraint("Coincident", 36, 2, 37, 1),
    Sketcher.Constraint("Coincident", 37, 2, 38, 1),
    Sketcher.Constraint("Coincident", 38, 2, 39, 1),
    Sketcher.Constraint("Coincident", 39, 2, 40, 1),
    Sketcher.Constraint("Coincident", 40, 2, 41, 1),
    Sketcher.Constraint("Coincident", 41, 2, 42, 1),
    Sketcher.Constraint("Coincident", 42, 2, 43, 1),
    Sketcher.Constraint("Coincident", 43, 2, 0, 1),
    Sketcher.Constraint("Vertical", 0),
    Sketcher.Constraint("Horizontal", 1),
    Sketcher.Constraint("Vertical", 2),
    Sketcher.Constraint("Horizontal", 3),
    Sketcher.Constraint("Vertical", 4),
    Sketcher.Constraint("Horizontal", 5),
    Sketcher.Constraint("Vertical", 6),
    Sketcher.Constraint("Horizontal", 7),
    Sketcher.Constraint("Vertical", 8),
    Sketcher.Constraint("Horizontal", 9),
    Sketcher.Constraint("Vertical", 10),
    Sketcher.Constraint("Horizontal", 11),
    Sketcher.Constraint("Vertical", 12),
    Sketcher.Constraint("Horizontal", 13),
    Sketcher.Constraint("Vertical", 14),
    Sketcher.Constraint("Horizontal", 15),
    Sketcher.Constraint("Vertical", 16),
    Sketcher.Constraint("Horizontal", 17),
    Sketcher.Constraint("Vertical", 18),
    Sketcher.Constraint("Horizontal", 19),
    Sketcher.Constraint("Vertical", 20),
    Sketcher.Constraint("Horizontal", 21),
    Sketcher.Constraint("Vertical", 22),
    Sketcher.Constraint("Horizontal", 23),
    Sketcher.Constraint("Vertical", 24),
    Sketcher.Constraint("Horizontal", 25),
    Sketcher.Constraint("Vertical", 26),
    Sketcher.Constraint("Horizontal", 27),
    Sketcher.Constraint("Vertical", 28),
    Sketcher.Constraint("Horizontal", 29),
    Sketcher.Constraint("Vertical", 30),
    Sketcher.Constraint("Horizontal", 31),
    Sketcher.Constraint("Vertical", 32),
    Sketcher.Constraint("Horizontal", 33),
    Sketcher.Constraint("Vertical", 34),
    Sketcher.Constraint("Horizontal", 35),
    Sketcher.Constraint("Vertical", 36),
    Sketcher.Constraint("Horizontal", 37),
    Sketcher.Constraint("Vertical", 38),
    Sketcher.Constraint("Horizontal", 39),
    Sketcher.Constraint("Vertical", 40),
    Sketcher.Constraint("Horizontal", 41),
    Sketcher.Constraint("Vertical", 42),
    Sketcher.Constraint("Horizontal", 43),
    Sketcher.Constraint("Symmetric", 0, 2, 22, 2, -1, 1),
    Sketcher.Constraint("Symmetric", 2, 2, 24, 2, -1, 1),
    Sketcher.Constraint("Symmetric", 4, 2, 26, 2, -1, 1),
    Sketcher.Constraint("Symmetric", 6, 2, 28, 2, -1, 1),
    Sketcher.Constraint("Symmetric", 8, 2, 30, 2, -1, 1),
    Sketcher.Constraint("Symmetric", 10, 2, 32, 2, -1, 1),
    Sketcher.Constraint("Symmetric", 12, 2, 34, 2, -1, 1),
    Sketcher.Constraint("Symmetric", 14, 2, 36, 2, -1, 1),
    Sketcher.Constraint("Symmetric", 16, 2, 38, 2, -1, 1),
    Sketcher.Constraint("Symmetric", 18, 2, 40, 2, -1, 1),
    Sketcher.Constraint("Symmetric", 20, 2, 42, 2, -1, 1),
    Sketcher.Constraint("Symmetric", 3, 2, 6, 2, -2),
    Sketcher.Constraint("Symmetric", 1, 2, 8, 2, -2),
    Sketcher.Constraint("Symmetric", 21, 2, 32, 2, -2),
    Sketcher.Constraint("Symmetric", 19, 2, 34, 2, -2),
    Sketcher.Constraint("Symmetric", 17, 2, 36, 2, -2),
    Sketcher.Constraint("Horizontal", 1, 2, 4, 2),
    Sketcher.Constraint("Vertical", 10, 2, 13, 2),
    Sketcher.Constraint("Vertical", 12, 2, 15, 2),
    Sketcher.Constraint("Equal", 43, 2),
    Sketcher.Constraint("Equal", 29, 12),
    Sketcher.Constraint("Equal", 12, 16),
    Sketcher.Constraint("DistanceX", 3, 1, 3, 2, 20.0),
    Sketcher.Constraint("DistanceX", 11, 2, 11, 1, 3.0),
    Sketcher.Constraint("DistanceX", 0, 2, -1, 1, 110.0),
    Sketcher.Constraint("DistanceY", 0, 2, 0, 1, 53.75),
    Sketcher.Constraint("DistanceY", 14, 1, 14, 2, 43.75),
    Sketcher.Constraint("DistanceX", 1, 1, 1, 2, 63.333333),
])
pad4 = doc.addObject("PartDesign::Pad", "Pad003")
body6.addObject(pad4)
pad4.Profile = sketch4
pad4.Length = 3
pad4.Reversed = True
mirroring.Visibility = False
mirroring2.Visibility = False

doc.recompute()
